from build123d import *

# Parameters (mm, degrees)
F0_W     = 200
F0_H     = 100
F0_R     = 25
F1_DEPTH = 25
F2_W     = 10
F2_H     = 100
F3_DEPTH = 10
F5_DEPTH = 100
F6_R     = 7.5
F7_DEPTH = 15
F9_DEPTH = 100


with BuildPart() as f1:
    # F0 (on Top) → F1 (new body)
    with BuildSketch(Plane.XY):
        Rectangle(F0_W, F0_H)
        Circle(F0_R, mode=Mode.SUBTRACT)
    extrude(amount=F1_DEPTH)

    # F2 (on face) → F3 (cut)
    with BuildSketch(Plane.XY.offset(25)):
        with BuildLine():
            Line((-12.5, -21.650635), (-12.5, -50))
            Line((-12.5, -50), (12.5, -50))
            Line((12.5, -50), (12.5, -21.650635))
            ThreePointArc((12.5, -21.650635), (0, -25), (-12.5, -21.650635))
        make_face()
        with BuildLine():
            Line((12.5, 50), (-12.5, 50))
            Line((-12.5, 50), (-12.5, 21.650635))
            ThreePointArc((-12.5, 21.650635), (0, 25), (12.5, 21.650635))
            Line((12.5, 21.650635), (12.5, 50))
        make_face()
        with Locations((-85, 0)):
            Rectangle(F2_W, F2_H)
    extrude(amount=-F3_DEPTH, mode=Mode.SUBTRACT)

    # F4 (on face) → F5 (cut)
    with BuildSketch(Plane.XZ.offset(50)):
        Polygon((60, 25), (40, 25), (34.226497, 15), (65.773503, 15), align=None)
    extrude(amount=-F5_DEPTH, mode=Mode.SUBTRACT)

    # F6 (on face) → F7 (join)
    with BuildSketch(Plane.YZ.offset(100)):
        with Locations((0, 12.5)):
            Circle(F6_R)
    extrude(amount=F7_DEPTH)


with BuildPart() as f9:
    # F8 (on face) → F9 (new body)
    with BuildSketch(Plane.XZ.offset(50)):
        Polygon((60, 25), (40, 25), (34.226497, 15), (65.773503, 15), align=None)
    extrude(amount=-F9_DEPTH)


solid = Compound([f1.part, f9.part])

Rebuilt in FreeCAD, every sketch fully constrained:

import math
import FreeCAD as App
import Part
import Sketcher
from FreeCAD import Vector
Q = App.Units.Quantity


def add_polygon(sketch, points):
    """Adds a closed chain of lines whose ends are joined by coincident constraints."""
    first, n = sketch.GeometryCount, len(points)
    for a, b in zip(points, points[1:] + points[:1]):
        sketch.addGeometry(Part.LineSegment(App.Vector(*a, 0), App.Vector(*b, 0)), False)
    for i in range(n):
        sketch.addConstraint(Sketcher.Constraint("Coincident", first + i, 2, first + (i + 1) % n, 1))

doc = App.newDocument("Part")
body = doc.addObject("PartDesign::Body", "Body")

sketch1 = body.newObject("Sketcher::SketchObject", "Sketch")
sketch1.AttachmentSupport = (doc.getObject("XY_Plane"), [""])
sketch1.MapMode = "FlatFace"
add_polygon(sketch1, [(-100, 50), (-100, -50), (100, -50), (100, 50)])
sketch1.addGeometry(Part.Circle(Vector(0, 0, 0), Vector(0, 0, 1), 25), False)
sketch1.addConstraint([
    Sketcher.Constraint("Vertical", 0),
    Sketcher.Constraint("Horizontal", 1),
    Sketcher.Constraint("Vertical", 2),
    Sketcher.Constraint("Horizontal", 3),
    Sketcher.Constraint("Coincident", 4, 3, -1, 1),
    Sketcher.Constraint("Symmetric", 0, 2, 2, 2, -1, 1),
    Sketcher.Constraint("Diameter", 4, 50.0),
    Sketcher.Constraint("DistanceX", 1, 1, 1, 2, 200.0),
    Sketcher.Constraint("DistanceY", 0, 2, 0, 1, 100.0),
])
pad1 = body.newObject("PartDesign::Pad", "Pad")
pad1.Profile = sketch1
pad1.Length = 25

sketch2 = body.newObject("Sketcher::SketchObject", "Sketch001")
sketch2.AttachmentSupport = (doc.getObject("XY_Plane"), [""])
sketch2.MapMode = "FlatFace"
sketch2.AttachmentOffset = App.Placement(Vector(0, 0, 25), App.Rotation())
sketch2.addGeometry(Part.LineSegment(Vector(-12, -22, 0), Vector(-12, -50, 0)), False)
sketch2.addGeometry(Part.LineSegment(Vector(-12, -50, 0), Vector(12, -50, 0)), False)
sketch2.addGeometry(Part.LineSegment(Vector(12, -50, 0), Vector(12, -22, 0)), False)
sketch2.addGeometry(Part.ArcOfCircle(Part.Circle(Vector(0, 0, 0), Vector(0, 0, 1), 25), math.radians(-120), math.radians(-60)), False)
sketch2.addGeometry(Part.LineSegment(Vector(12, 50, 0), Vector(-12, 50, 0)), False)
sketch2.addGeometry(Part.LineSegment(Vector(-12, 50, 0), Vector(-12, 22, 0)), False)
sketch2.addGeometry(Part.ArcOfCircle(Part.Circle(Vector(0, 0, 0), Vector(0, 0, 1), 25), math.radians(60), math.radians(120)), False)
sketch2.addGeometry(Part.LineSegment(Vector(12, 22, 0), Vector(12, 50, 0)), False)
add_polygon(sketch2, [(-90, 50), (-90, -50), (-80, -50), (-80, 50)])
sketch2.addConstraint([
    Sketcher.Constraint("Coincident", 0, 2, 1, 1),
    Sketcher.Constraint("Coincident", 1, 2, 2, 1),
    Sketcher.Constraint("Coincident", 2, 2, 3, 2),
    Sketcher.Constraint("Coincident", 3, 1, 0, 1),
    Sketcher.Constraint("Coincident", 4, 2, 5, 1),
    Sketcher.Constraint("Coincident", 5, 2, 6, 2),
    Sketcher.Constraint("Coincident", 6, 1, 7, 1),
    Sketcher.Constraint("Coincident", 7, 2, 4, 1),
    Sketcher.Constraint("Vertical", 0),
    Sketcher.Constraint("Horizontal", 1),
    Sketcher.Constraint("Vertical", 2),
    Sketcher.Constraint("Horizontal", 4),
    Sketcher.Constraint("Vertical", 5),
    Sketcher.Constraint("Vertical", 7),
    Sketcher.Constraint("Vertical", 8),
    Sketcher.Constraint("Horizontal", 9),
    Sketcher.Constraint("Vertical", 10),
    Sketcher.Constraint("Horizontal", 11),
    Sketcher.Constraint("Coincident", 3, 3, -1, 1),
    Sketcher.Constraint("Coincident", 6, 3, -1, 1),
    Sketcher.Constraint("Equal", 3, 6),
    Sketcher.Constraint("Symmetric", 1, 2, 4, 2, -1, 1),
    Sketcher.Constraint("Horizontal", 2, 2, 3, 1),
    Sketcher.Constraint("Horizontal", 5, 2, 6, 1),
    Sketcher.Constraint("Horizontal", 1, 2, 8, 2),
    Sketcher.Constraint("Horizontal", 7, 2, 10, 2),
    Sketcher.Constraint("Radius", 3, 24.999999),
    Sketcher.Constraint("DistanceX", 1, 1, 1, 2, 25.0),
    Sketcher.Constraint("DistanceX", 9, 1, 9, 2, 10.0),
    Sketcher.Constraint("DistanceY", 8, 2, 8, 1, 100.0),
    Sketcher.Constraint("DistanceX", 8, 2, -1, 1, 90.0),
])
pocket1 = body.newObject("PartDesign::Pocket", "Pocket")
pocket1.Profile = sketch2
pocket1.Length = 10

sketch3 = body.newObject("Sketcher::SketchObject", "Sketch002")
sketch3.AttachmentSupport = (doc.getObject("XZ_Plane"), [""])
sketch3.MapMode = "FlatFace"
sketch3.AttachmentOffset = App.Placement(Vector(0, 0, 50), App.Rotation())
add_polygon(sketch3, [(60, 25), (40, 25), (34, 15), (66, 15)])
sketch3.addConstraint([
    Sketcher.Constraint("Horizontal", 0),
    Sketcher.Constraint("Horizontal", 2),
    Sketcher.Constraint("Equal", 1, 3),
    Sketcher.Constraint("DistanceX", 0, 2, 0, 1, 20.0),
    Sketcher.Constraint("Angle", 1, Q("-120.000001 deg")),
    Sketcher.Constraint("DistanceX", -1, 1, 0, 2, 40.0),
    Sketcher.Constraint("DistanceY", -1, 1, 0, 2, 25.0),
    Sketcher.Constraint("DistanceY", -1, 1, 1, 2, 15.0),
])
pocket2 = body.newObject("PartDesign::Pocket", "Pocket001")
pocket2.Profile = sketch3
pocket2.Length = 100

sketch4 = body.newObject("Sketcher::SketchObject", "Sketch003")
sketch4.AttachmentSupport = (doc.getObject("YZ_Plane"), [""])
sketch4.MapMode = "FlatFace"
sketch4.AttachmentOffset = App.Placement(Vector(0, 0, 100), App.Rotation())
sketch4.addGeometry(Part.Circle(Vector(0, 12, 0), Vector(0, 0, 1), 8), False)
sketch4.addConstraint([
    Sketcher.Constraint("PointOnObject", 0, 3, -2),
    Sketcher.Constraint("Diameter", 0, 15.0),
    Sketcher.Constraint("DistanceY", -1, 1, 0, 3, 12.5),
])
pad2 = body.newObject("PartDesign::Pad", "Pad001")
pad2.Profile = sketch4
pad2.Length = 15
body2 = doc.addObject("PartDesign::Body", "Body001")

sketch5 = body2.newObject("Sketcher::SketchObject", "Sketch004")
sketch5.AttachmentSupport = (doc.getObject("XZ_Plane001"), [""])
sketch5.MapMode = "FlatFace"
sketch5.AttachmentOffset = App.Placement(Vector(0, 0, 50), App.Rotation())
add_polygon(sketch5, [(60, 25), (40, 25), (34, 15), (66, 15)])
sketch5.addConstraint([
    Sketcher.Constraint("Horizontal", 0),
    Sketcher.Constraint("Horizontal", 2),
    Sketcher.Constraint("Equal", 1, 3),
    Sketcher.Constraint("DistanceX", 0, 2, 0, 1, 20.0),
    Sketcher.Constraint("Angle", 1, Q("-120.000001 deg")),
    Sketcher.Constraint("DistanceX", -1, 1, 0, 2, 40.0),
    Sketcher.Constraint("DistanceY", -1, 1, 0, 2, 25.0),
    Sketcher.Constraint("DistanceY", -1, 1, 1, 2, 15.0),
])
pad3 = body2.newObject("PartDesign::Pad", "Pad002")
pad3.Profile = sketch5
pad3.Length = 100
pad3.Reversed = True

doc.recompute()
